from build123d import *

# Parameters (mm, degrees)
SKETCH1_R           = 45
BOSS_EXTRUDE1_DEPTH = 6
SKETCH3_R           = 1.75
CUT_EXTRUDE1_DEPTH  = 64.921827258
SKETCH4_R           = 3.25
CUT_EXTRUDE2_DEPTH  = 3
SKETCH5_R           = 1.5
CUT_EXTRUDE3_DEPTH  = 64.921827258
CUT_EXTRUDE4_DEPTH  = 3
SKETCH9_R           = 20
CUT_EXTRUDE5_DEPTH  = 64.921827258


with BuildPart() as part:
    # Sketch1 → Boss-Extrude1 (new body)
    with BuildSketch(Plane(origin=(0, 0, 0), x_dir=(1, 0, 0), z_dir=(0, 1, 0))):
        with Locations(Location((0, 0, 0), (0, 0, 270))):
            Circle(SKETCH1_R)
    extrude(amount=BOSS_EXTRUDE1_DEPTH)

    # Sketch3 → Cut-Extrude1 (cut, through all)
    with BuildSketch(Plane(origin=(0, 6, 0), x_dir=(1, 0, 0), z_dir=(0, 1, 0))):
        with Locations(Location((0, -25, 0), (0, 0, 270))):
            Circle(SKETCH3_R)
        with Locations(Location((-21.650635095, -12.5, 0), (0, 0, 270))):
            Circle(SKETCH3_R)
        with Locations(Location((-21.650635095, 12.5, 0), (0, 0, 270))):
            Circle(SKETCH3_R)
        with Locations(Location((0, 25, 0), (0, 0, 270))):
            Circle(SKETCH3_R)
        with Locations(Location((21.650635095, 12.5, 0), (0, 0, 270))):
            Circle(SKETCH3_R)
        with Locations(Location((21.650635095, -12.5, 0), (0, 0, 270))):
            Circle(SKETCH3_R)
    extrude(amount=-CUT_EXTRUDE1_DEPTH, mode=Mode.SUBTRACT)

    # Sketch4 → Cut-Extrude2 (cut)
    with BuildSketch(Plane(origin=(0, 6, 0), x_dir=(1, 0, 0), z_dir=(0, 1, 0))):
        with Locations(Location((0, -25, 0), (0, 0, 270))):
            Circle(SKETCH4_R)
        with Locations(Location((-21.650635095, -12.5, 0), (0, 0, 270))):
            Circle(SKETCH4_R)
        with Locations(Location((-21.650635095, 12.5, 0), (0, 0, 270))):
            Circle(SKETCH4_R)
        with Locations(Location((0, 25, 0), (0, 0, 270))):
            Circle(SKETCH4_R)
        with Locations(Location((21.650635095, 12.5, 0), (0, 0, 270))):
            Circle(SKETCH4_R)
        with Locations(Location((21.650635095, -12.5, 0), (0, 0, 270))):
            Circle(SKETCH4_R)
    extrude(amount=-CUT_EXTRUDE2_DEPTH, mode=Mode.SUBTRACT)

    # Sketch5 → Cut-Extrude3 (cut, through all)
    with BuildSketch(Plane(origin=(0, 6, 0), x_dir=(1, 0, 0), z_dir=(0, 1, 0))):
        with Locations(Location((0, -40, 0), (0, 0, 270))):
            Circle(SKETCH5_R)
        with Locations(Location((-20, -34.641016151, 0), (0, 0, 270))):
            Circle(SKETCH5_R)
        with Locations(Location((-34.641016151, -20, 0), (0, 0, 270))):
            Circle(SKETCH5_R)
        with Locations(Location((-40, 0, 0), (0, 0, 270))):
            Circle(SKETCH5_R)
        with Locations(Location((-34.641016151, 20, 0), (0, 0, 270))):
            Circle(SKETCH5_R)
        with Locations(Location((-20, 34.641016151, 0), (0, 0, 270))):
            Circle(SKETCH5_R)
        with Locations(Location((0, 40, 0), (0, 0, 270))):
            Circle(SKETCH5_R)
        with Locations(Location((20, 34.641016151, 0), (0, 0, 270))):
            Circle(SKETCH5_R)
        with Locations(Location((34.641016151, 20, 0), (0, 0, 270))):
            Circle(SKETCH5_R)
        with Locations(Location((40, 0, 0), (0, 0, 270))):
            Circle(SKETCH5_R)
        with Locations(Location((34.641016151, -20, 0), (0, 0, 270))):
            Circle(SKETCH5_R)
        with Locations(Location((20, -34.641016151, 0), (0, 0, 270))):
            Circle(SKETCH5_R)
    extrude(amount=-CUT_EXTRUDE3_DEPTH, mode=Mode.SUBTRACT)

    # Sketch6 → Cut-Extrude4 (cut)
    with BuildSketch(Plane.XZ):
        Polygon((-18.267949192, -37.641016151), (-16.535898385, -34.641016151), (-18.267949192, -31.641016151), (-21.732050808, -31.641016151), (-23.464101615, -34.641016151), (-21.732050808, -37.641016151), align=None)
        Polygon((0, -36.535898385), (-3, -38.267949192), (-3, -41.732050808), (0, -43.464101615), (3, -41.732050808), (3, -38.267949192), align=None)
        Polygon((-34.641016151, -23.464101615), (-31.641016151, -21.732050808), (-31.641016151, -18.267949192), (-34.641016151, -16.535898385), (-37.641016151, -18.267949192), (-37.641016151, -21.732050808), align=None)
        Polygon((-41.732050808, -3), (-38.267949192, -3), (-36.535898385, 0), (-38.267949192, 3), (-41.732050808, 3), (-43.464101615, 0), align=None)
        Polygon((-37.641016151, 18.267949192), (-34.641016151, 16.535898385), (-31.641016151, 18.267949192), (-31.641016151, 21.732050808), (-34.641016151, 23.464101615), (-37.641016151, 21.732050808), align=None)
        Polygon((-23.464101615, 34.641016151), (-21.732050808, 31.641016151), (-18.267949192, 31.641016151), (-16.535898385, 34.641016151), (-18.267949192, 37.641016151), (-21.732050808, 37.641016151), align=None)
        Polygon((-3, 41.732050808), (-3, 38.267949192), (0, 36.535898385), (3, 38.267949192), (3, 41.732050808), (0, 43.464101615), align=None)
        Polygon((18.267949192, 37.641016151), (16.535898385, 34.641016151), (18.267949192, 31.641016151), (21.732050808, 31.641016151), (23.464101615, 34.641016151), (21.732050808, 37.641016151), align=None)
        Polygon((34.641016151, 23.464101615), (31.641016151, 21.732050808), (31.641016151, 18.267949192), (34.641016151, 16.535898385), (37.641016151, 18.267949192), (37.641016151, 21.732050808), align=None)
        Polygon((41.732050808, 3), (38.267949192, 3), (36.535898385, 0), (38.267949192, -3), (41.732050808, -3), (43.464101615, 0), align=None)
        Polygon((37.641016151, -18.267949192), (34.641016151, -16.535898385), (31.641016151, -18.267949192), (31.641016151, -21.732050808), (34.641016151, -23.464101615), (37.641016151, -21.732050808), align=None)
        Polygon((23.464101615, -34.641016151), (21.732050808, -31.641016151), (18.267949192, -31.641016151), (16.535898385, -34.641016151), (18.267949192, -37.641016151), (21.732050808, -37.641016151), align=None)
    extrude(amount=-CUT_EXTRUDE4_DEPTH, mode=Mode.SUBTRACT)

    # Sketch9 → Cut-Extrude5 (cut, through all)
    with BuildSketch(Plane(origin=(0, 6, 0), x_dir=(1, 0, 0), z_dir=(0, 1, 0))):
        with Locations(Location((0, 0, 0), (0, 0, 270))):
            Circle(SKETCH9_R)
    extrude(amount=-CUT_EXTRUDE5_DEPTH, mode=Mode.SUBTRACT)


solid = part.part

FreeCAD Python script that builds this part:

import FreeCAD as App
import Part
import Sketcher

V = App.Vector
Q = App.Units.Quantity


def add_polygon(sketch, points):
    """Adds a closed chain of lines whose ends are joined by coincident constraints."""
    first, n = sketch.GeometryCount, len(points)
    for a, b in zip(points, points[1:] + points[:1]):
        sketch.addGeometry(Part.LineSegment(App.Vector(*a, 0), App.Vector(*b, 0)), False)
    for i in range(n):
        sketch.addConstraint(Sketcher.Constraint("Coincident", first + i, 2, first + (i + 1) % n, 1))

doc = App.newDocument("Part")
body = doc.addObject("PartDesign::Body", "Body")

# Sketch on XZ plane
sketch1 = body.newObject("Sketcher::SketchObject", "Sketch")
sketch1.AttachmentSupport = (doc.getObject("XZ_Plane"), [""])
sketch1.MapMode = "FlatFace"
sketch1.addGeometry(Part.Circle(V(0, 0, 0), V(0, 0, 1), 45), False)
sketch1.addConstraint(Sketcher.Constraint("Coincident", 0, 3, -1, 1))
sketch1.addConstraint(Sketcher.Constraint("Diameter", 0, Q("90 mm")))
pad1 = body.newObject("PartDesign::Pad", "Pad")
pad1.Profile = sketch1
pad1.Length = 6
pad1.Reversed = True

# Sketch on XZ plane
sketch2 = body.newObject("Sketcher::SketchObject", "Sketch001")
sketch2.AttachmentSupport = (doc.getObject("XZ_Plane"), [""])
sketch2.MapMode = "FlatFace"
sketch2.AttachmentOffset = App.Placement(V(0, 0, -6), App.Rotation())
sketch2.addGeometry(Part.Circle(V(0, 25, 0), V(0, 0, 1), 1.8), False)
sketch2.addGeometry(Part.Circle(V(-21.7, 12.5, 0), V(0, 0, 1), 1.8), False)
sketch2.addGeometry(Part.Circle(V(-21.7, -12.5, 0), V(0, 0, 1), 1.8), False)
sketch2.addGeometry(Part.Circle(V(0, -25, 0), V(0, 0, 1), 1.8), False)
sketch2.addGeometry(Part.Circle(V(21.7, -12.5, 0), V(0, 0, 1), 1.8), False)
sketch2.addGeometry(Part.Circle(V(21.7, 12.5, 0), V(0, 0, 1), 1.8), False)
sketch2.addConstraint(Sketcher.Constraint("Equal", 0, 1))
sketch2.addConstraint(Sketcher.Constraint("Equal", 1, 2))
sketch2.addConstraint(Sketcher.Constraint("Equal", 2, 3))
sketch2.addConstraint(Sketcher.Constraint("Equal", 3, 4))
sketch2.addConstraint(Sketcher.Constraint("Equal", 4, 5))
sketch2.addConstraint(Sketcher.Constraint("Symmetric", 0, 3, 3, 3, -1, 1))
sketch2.addConstraint(Sketcher.Constraint("Symmetric", 1, 3, 4, 3, -1, 1))
sketch2.addConstraint(Sketcher.Constraint("Symmetric", 2, 3, 5, 3, -1, 1))
sketch2.addConstraint(Sketcher.Constraint("Symmetric", 2, 3, 4, 3, -2))
sketch2.addConstraint(Sketcher.Constraint("PointOnObject", 0, 3, -2))
sketch2.addConstraint(Sketcher.Constraint("Diameter", 0, Q("3.5 mm")))
sketch2.addConstraint(Sketcher.Constraint("DistanceY", -1, 1, 0, 3, Q("25 mm")))
sketch2.addConstraint(Sketcher.Constraint("DistanceY", 2, 3, 1, 3, Q("25 mm")))
sketch2.addConstraint(Sketcher.Constraint("DistanceX", 2, 3, 4, 3, Q("43.30127 mm")))
pocket1 = body.newObject("PartDesign::Pocket", "Pocket")
pocket1.Profile = sketch2
pocket1.Type = "ThroughAll"
pocket1.Reversed = True

# Sketch on XZ plane
sketch3 = body.newObject("Sketcher::SketchObject", "Sketch002")
sketch3.AttachmentSupport = (doc.getObject("XZ_Plane"), [""])
sketch3.MapMode = "FlatFace"
sketch3.AttachmentOffset = App.Placement(V(0, 0, -6), App.Rotation())
sketch3.addGeometry(Part.Circle(V(0, 25, 0), V(0, 0, 1), 3.2), False)
sketch3.addGeometry(Part.Circle(V(-21.7, 12.5, 0), V(0, 0, 1), 3.2), False)
sketch3.addGeometry(Part.Circle(V(-21.7, -12.5, 0), V(0, 0, 1), 3.2), False)
sketch3.addGeometry(Part.Circle(V(0, -25, 0), V(0, 0, 1), 3.2), False)
sketch3.addGeometry(Part.Circle(V(21.7, -12.5, 0), V(0, 0, 1), 3.2), False)
sketch3.addGeometry(Part.Circle(V(21.7, 12.5, 0), V(0, 0, 1), 3.2), False)
sketch3.addConstraint(Sketcher.Constraint("Equal", 0, 1))
sketch3.addConstraint(Sketcher.Constraint("Equal", 1, 2))
sketch3.addConstraint(Sketcher.Constraint("Equal", 2, 3))
sketch3.addConstraint(Sketcher.Constraint("Equal", 3, 4))
sketch3.addConstraint(Sketcher.Constraint("Equal", 4, 5))
sketch3.addConstraint(Sketcher.Constraint("Symmetric", 0, 3, 3, 3, -1, 1))
sketch3.addConstraint(Sketcher.Constraint("Symmetric", 1, 3, 4, 3, -1, 1))
sketch3.addConstraint(Sketcher.Constraint("Symmetric", 2, 3, 5, 3, -1, 1))
sketch3.addConstraint(Sketcher.Constraint("Symmetric", 2, 3, 4, 3, -2))
sketch3.addConstraint(Sketcher.Constraint("PointOnObject", 0, 3, -2))
sketch3.addConstraint(Sketcher.Constraint("Diameter", 0, Q("6.5 mm")))
sketch3.addConstraint(Sketcher.Constraint("DistanceY", -1, 1, 0, 3, Q("25 mm")))
sketch3.addConstraint(Sketcher.Constraint("DistanceY", 2, 3, 1, 3, Q("25 mm")))
sketch3.addConstraint(Sketcher.Constraint("DistanceX", 2, 3, 4, 3, Q("43.30127 mm")))
pocket2 = body.newObject("PartDesign::Pocket", "Pocket001")
pocket2.Profile = sketch3
pocket2.Length = 3
pocket2.Reversed = True

# Sketch on XZ plane
sketch4 = body.newObject("Sketcher::SketchObject", "Sketch003")
sketch4.AttachmentSupport = (doc.getObject("XZ_Plane"), [""])
sketch4.MapMode = "FlatFace"
sketch4.AttachmentOffset = App.Placement(V(0, 0, -6), App.Rotation())
sketch4.addGeometry(Part.Circle(V(0, 40, 0), V(0, 0, 1), 1.5), False)
sketch4.addGeometry(Part.Circle(V(-20, 34.6, 0), V(0, 0, 1), 1.5), False)
sketch4.addGeometry(Part.Circle(V(-34.6, 20, 0), V(0, 0, 1), 1.5), False)
sketch4.addGeometry(Part.Circle(V(-40, 0, 0), V(0, 0, 1), 1.5), False)
sketch4.addGeometry(Part.Circle(V(-34.6, -20, 0), V(0, 0, 1), 1.5), False)
sketch4.addGeometry(Part.Circle(V(-20, -34.6, 0), V(0, 0, 1), 1.5), False)
sketch4.addGeometry(Part.Circle(V(0, -40, 0), V(0, 0, 1), 1.5), False)
sketch4.addGeometry(Part.Circle(V(20, -34.6, 0), V(0, 0, 1), 1.5), False)
sketch4.addGeometry(Part.Circle(V(34.6, -20, 0), V(0, 0, 1), 1.5), False)
sketch4.addGeometry(Part.Circle(V(40, 0, 0), V(0, 0, 1), 1.5), False)
sketch4.addGeometry(Part.Circle(V(34.6, 20, 0), V(0, 0, 1), 1.5), False)
sketch4.addGeometry(Part.Circle(V(20, 34.6, 0), V(0, 0, 1), 1.5), False)
sketch4.addConstraint(Sketcher.Constraint("Equal", 0, 1))
sketch4.addConstraint(Sketcher.Constraint("Equal", 1, 2))
sketch4.addConstraint(Sketcher.Constraint("Equal", 2, 3))
sketch4.addConstraint(Sketcher.Constraint("Equal", 3, 4))
sketch4.addConstraint(Sketcher.Constraint("Equal", 4, 5))
sketch4.addConstraint(Sketcher.Constraint("Equal", 5, 6))
sketch4.addConstraint(Sketcher.Constraint("Equal", 6, 7))
sketch4.addConstraint(Sketcher.Constraint("Equal", 7, 8))
sketch4.addConstraint(Sketcher.Constraint("Equal", 8, 9))
sketch4.addConstraint(Sketcher.Constraint("Equal", 9, 10))
sketch4.addConstraint(Sketcher.Constraint("Equal", 10, 11))
sketch4.addConstraint(Sketcher.Constraint("Symmetric", 0, 3, 6, 3, -1, 1))
sketch4.addConstraint(Sketcher.Constraint("Symmetric", 1, 3, 7, 3, -1, 1))
sketch4.addConstraint(Sketcher.Constraint("Symmetric", 2, 3, 8, 3, -1, 1))
sketch4.addConstraint(Sketcher.Constraint("Symmetric", 3, 3, 9, 3, -1, 1))
sketch4.addConstraint(Sketcher.Constraint("Symmetric", 4, 3, 10, 3, -1, 1))
sketch4.addConstraint(Sketcher.Constraint("Symmetric", 5, 3, 11, 3, -1, 1))
sketch4.addConstraint(Sketcher.Constraint("Symmetric", 5, 3, 7, 3, -2))
sketch4.addConstraint(Sketcher.Constraint("Symmetric", 4, 3, 8, 3, -2))
sketch4.addConstraint(Sketcher.Constraint("PointOnObject", 0, 3, -2))
sketch4.addConstraint(Sketcher.Constraint("PointOnObject", 3, 3, -1))
sketch4.addConstraint(Sketcher.Constraint("Diameter", 0, Q("3 mm")))
sketch4.addConstraint(Sketcher.Constraint("DistanceY", -1, 1, 0, 3, Q("40 mm")))
sketch4.addConstraint(Sketcher.Constraint("DistanceX", 1, 3, -1, 1, Q("20 mm")))
sketch4.addConstraint(Sketcher.Constraint("DistanceY", -1, 1, 2, 3, Q("20 mm")))
sketch4.addConstraint(Sketcher.Constraint("DistanceX", 3, 3, -1, 1, Q("40 mm")))
sketch4.addConstraint(Sketcher.Constraint("DistanceY", -1, 1, 1, 3, Q("34.641016 mm")))
sketch4.addConstraint(Sketcher.Constraint("DistanceX", 2, 3, -1, 1, Q("34.641016 mm")))
pocket3 = body.newObject("PartDesign::Pocket", "Pocket002")
pocket3.Profile = sketch4
pocket3.Type = "ThroughAll"
pocket3.Reversed = True

# Sketch on XZ plane
sketch5 = body.newObject("Sketcher::SketchObject", "Sketch004")
sketch5.AttachmentSupport = (doc.getObject("XZ_Plane"), [""])
sketch5.MapMode = "FlatFace"
add_polygon(sketch5, [(-18.3, -37.6), (-16.5, -34.6), (-18.3, -31.6), (-21.7, -31.6), (-23.5, -34.6), (-21.7, -37.6)])  # lines 0-5
add_polygon(sketch5, [(0, -36.5), (-3, -38.3), (-3, -41.7), (0, -43.5), (3, -41.7), (3, -38.3)])  # lines 6-11
add_polygon(sketch5, [(-34.6, -23.5), (-31.6, -21.7), (-31.6, -18.3), (-34.6, -16.5), (-37.6, -18.3), (-37.6, -21.7)])  # lines 12-17
add_polygon(sketch5, [(-41.7, -3), (-38.3, -3), (-36.5, 0), (-38.3, 3), (-41.7, 3), (-43.5, 0)])  # lines 18-23
add_polygon(sketch5, [(-37.6, 18.3), (-34.6, 16.5), (-31.6, 18.3), (-31.6, 21.7), (-34.6, 23.5), (-37.6, 21.7)])  # lines 24-29
add_polygon(sketch5, [(-23.5, 34.6), (-21.7, 31.6), (-18.3, 31.6), (-16.5, 34.6), (-18.3, 37.6), (-21.7, 37.6)])  # lines 30-35
add_polygon(sketch5, [(-3, 41.7), (-3, 38.3), (0, 36.5), (3, 38.3), (3, 41.7), (0, 43.5)])  # lines 36-41
add_polygon(sketch5, [(18.3, 37.6), (16.5, 34.6), (18.3, 31.6), (21.7, 31.6), (23.5, 34.6), (21.7, 37.6)])  # lines 42-47
add_polygon(sketch5, [(34.6, 23.5), (31.6, 21.7), (31.6, 18.3), (34.6, 16.5), (37.6, 18.3), (37.6, 21.7)])  # lines 48-53
add_polygon(sketch5, [(41.7, 3), (38.3, 3), (36.5, 0), (38.3, -3), (41.7, -3), (43.5, 0)])  # lines 54-59
add_polygon(sketch5, [(37.6, -18.3), (34.6, -16.5), (31.6, -18.3), (31.6, -21.7), (34.6, -23.5), (37.6, -21.7)])  # lines 60-65
add_polygon(sketch5, [(23.5, -34.6), (21.7, -31.6), (18.3, -31.6), (16.5, -34.6), (18.3, -37.6), (21.7, -37.6)])  # lines 66-71
sketch5.addConstraint(Sketcher.Constraint("Horizontal", 2))
sketch5.addConstraint(Sketcher.Constraint("Horizontal", 5))
sketch5.addConstraint(Sketcher.Constraint("Vertical", 7))
sketch5.addConstraint(Sketcher.Constraint("Vertical", 10))
sketch5.addConstraint(Sketcher.Constraint("Vertical", 13))
sketch5.addConstraint(Sketcher.Constraint("Vertical", 16))
sketch5.addConstraint(Sketcher.Constraint("Horizontal", 18))
sketch5.addConstraint(Sketcher.Constraint("Horizontal", 21))
sketch5.addConstraint(Sketcher.Constraint("Vertical", 26))
sketch5.addConstraint(Sketcher.Constraint("Vertical", 29))
sketch5.addConstraint(Sketcher.Constraint("Horizontal", 31))
sketch5.addConstraint(Sketcher.Constraint("Horizontal", 34))
sketch5.addConstraint(Sketcher.Constraint("Vertical", 36))
sketch5.addConstraint(Sketcher.Constraint("Vertical", 39))
sketch5.addConstraint(Sketcher.Constraint("Horizontal", 44))
sketch5.addConstraint(Sketcher.Constraint("Horizontal", 47))
sketch5.addConstraint(Sketcher.Constraint("Vertical", 49))
sketch5.addConstraint(Sketcher.Constraint("Vertical", 52))
sketch5.addConstraint(Sketcher.Constraint("Horizontal", 54))
sketch5.addConstraint(Sketcher.Constraint("Horizontal", 57))
sketch5.addConstraint(Sketcher.Constraint("Vertical", 62))
sketch5.addConstraint(Sketcher.Constraint("Vertical", 65))
sketch5.addConstraint(Sketcher.Constraint("Horizontal", 67))
sketch5.addConstraint(Sketcher.Constraint("Horizontal", 70))
sketch5.addConstraint(Sketcher.Constraint("Symmetric", 10, 2, 36, 2, -1, 1))
sketch5.addConstraint(Sketcher.Constraint("Symmetric", 11, 2, 37, 2, -1, 1))
sketch5.addConstraint(Sketcher.Constraint("Symmetric", 6, 2, 38, 2, -1, 1))
sketch5.addConstraint(Sketcher.Constraint("Symmetric", 8, 2, 40, 2, -1, 1))
sketch5.addConstraint(Sketcher.Constraint("Symmetric", 0, 2, 42, 2, -1, 1))
sketch5.addConstraint(Sketcher.Constraint("Symmetric", 1, 2, 43, 2, -1, 1))
sketch5.addConstraint(Sketcher.Constraint("Symmetric", 3, 2, 45, 2, -1, 1))
sketch5.addConstraint(Sketcher.Constraint("Symmetric", 4, 2, 46, 2, -1, 1))
sketch5.addConstraint(Sketcher.Constraint("Symmetric", 12, 2, 48, 2, -1, 1))
sketch5.addConstraint(Sketcher.Constraint("Symmetric", 14, 2, 50, 2, -1, 1))
sketch5.addConstraint(Sketcher.Constraint("Symmetric", 15, 2, 51, 2, -1, 1))
sketch5.addConstraint(Sketcher.Constraint("Symmetric", 17, 2, 53, 2, -1, 1))
sketch5.addConstraint(Sketcher.Constraint("Symmetric", 18, 2, 54, 2, -1, 1))
sketch5.addConstraint(Sketcher.Constraint("Symmetric", 19, 2, 55, 2, -1, 1))
sketch5.addConstraint(Sketcher.Constraint("Symmetric", 20, 2, 56, 2, -1, 1))
sketch5.addConstraint(Sketcher.Constraint("Symmetric", 22, 2, 58, 2, -1, 1))
sketch5.addConstraint(Sketcher.Constraint("Symmetric", 24, 2, 60, 2, -1, 1))
sketch5.addConstraint(Sketcher.Constraint("Symmetric", 25, 2, 61, 2, -1, 1))
sketch5.addConstraint(Sketcher.Constraint("Symmetric", 27, 2, 63, 2, -1, 1))
sketch5.addConstraint(Sketcher.Constraint("Symmetric", 28, 2, 64, 2, -1, 1))
sketch5.addConstraint(Sketcher.Constraint("Symmetric", 30, 2, 66, 2, -1, 1))
sketch5.addConstraint(Sketcher.Constraint("Symmetric", 32, 2, 68, 2, -1, 1))
sketch5.addConstraint(Sketcher.Constraint("Symmetric", 33, 2, 69, 2, -1, 1))
sketch5.addConstraint(Sketcher.Constraint("Symmetric", 35, 2, 71, 2, -1, 1))
sketch5.addConstraint(Sketcher.Constraint("Symmetric", 7, 2, 9, 2, -2))
sketch5.addConstraint(Sketcher.Constraint("Symmetric", 32, 2, 42, 2, -2))
sketch5.addConstraint(Sketcher.Constraint("Symmetric", 31, 2, 43, 2, -2))
sketch5.addConstraint(Sketcher.Constraint("Symmetric", 35, 2, 45, 2, -2))
sketch5.addConstraint(Sketcher.Constraint("Symmetric", 34, 2, 46, 2, -2))
sketch5.addConstraint(Sketcher.Constraint("Symmetric", 26, 2, 48, 2, -2))
sketch5.addConstraint(Sketcher.Constraint("Symmetric", 24, 2, 50, 2, -2))
sketch5.addConstraint(Sketcher.Constraint("Symmetric", 29, 2, 51, 2, -2))
sketch5.addConstraint(Sketcher.Constraint("Symmetric", 27, 2, 53, 2, -2))
sketch5.addConstraint(Sketcher.Constraint("Symmetric", 20, 2, 54, 2, -2))
sketch5.addConstraint(Sketcher.Constraint("PointOnObject", 8, 2, -2))
sketch5.addConstraint(Sketcher.Constraint("PointOnObject", 11, 2, -2))
sketch5.addConstraint(Sketcher.Constraint("PointOnObject", 19, 2, -1))
sketch5.addConstraint(Sketcher.Constraint("PointOnObject", 22, 2, -1))
sketch5.addConstraint(Sketcher.Constraint("Parallel", 0, 3))
sketch5.addConstraint(Sketcher.Constraint("Parallel", 1, 4))
sketch5.addConstraint(Sketcher.Constraint("Perpendicular", 4, 6))
sketch5.addConstraint(Sketcher.Constraint("Perpendicular", 3, 8))
sketch5.addConstraint(Sketcher.Constraint("Parallel", 6, 9))
sketch5.addConstraint(Sketcher.Constraint("Parallel", 8, 11))
sketch5.addConstraint(Sketcher.Constraint("Parallel", 9, 12))
sketch5.addConstraint(Sketcher.Constraint("Parallel", 11, 14))
sketch5.addConstraint(Sketcher.Constraint("Parallel", 12, 15))
sketch5.addConstraint(Sketcher.Constraint("Parallel", 14, 17))
sketch5.addConstraint(Sketcher.Constraint("Perpendicular", 17, 19))
sketch5.addConstraint(Sketcher.Constraint("Parallel", 19, 22))
sketch5.addConstraint(Sketcher.Constraint("Parallel", 20, 23))
sketch5.addConstraint(Sketcher.Constraint("Perpendicular", 23, 25))
sketch5.addConstraint(Sketcher.Constraint("Parallel", 25, 28))
sketch5.addConstraint(Sketcher.Constraint("Perpendicular", 28, 30))
sketch5.addConstraint(Sketcher.Constraint("Parallel", 30, 33))
sketch5.addConstraint(Sketcher.Constraint("Parallel", 37, 40))
sketch5.addConstraint(Sketcher.Constraint("Parallel", 38, 41))
sketch5.addConstraint(Sketcher.Constraint("Perpendicular", 40, 42))
sketch5.addConstraint(Sketcher.Constraint("Parallel", 42, 45))
sketch5.addConstraint(Sketcher.Constraint("Perpendicular", 45, 50))
sketch5.addConstraint(Sketcher.Constraint("Parallel", 50, 53))
sketch5.addConstraint(Sketcher.Constraint("Parallel", 55, 58))
sketch5.addConstraint(Sketcher.Constraint("Parallel", 56, 59))
sketch5.addConstraint(Sketcher.Constraint("Perpendicular", 58, 60))
sketch5.addConstraint(Sketcher.Constraint("Parallel", 60, 63))
sketch5.addConstraint(Sketcher.Constraint("Perpendicular", 63, 68))
sketch5.addConstraint(Sketcher.Constraint("Parallel", 68, 71))
sketch5.addConstraint(Sketcher.Constraint("Horizontal", 0, 2, 3, 2))
sketch5.addConstraint(Sketcher.Constraint("Horizontal", 13, 2, 15, 2))
sketch5.addConstraint(Sketcher.Constraint("Horizontal", 12, 2, 16, 2))
sketch5.addConstraint(Sketcher.Constraint("Vertical", 2, 2, 4, 2))
sketch5.addConstraint(Sketcher.Constraint("Equal", 5, 18))
sketch5.addConstraint(Sketcher.Constraint("Equal", 70, 7))
sketch5.addConstraint(Sketcher.Constraint("Equal", 10, 13))
sketch5.addConstraint(Sketcher.Constraint("Equal", 4, 6))
sketch5.addConstraint(Sketcher.Constraint("Equal", 11, 12))
sketch5.addConstraint(Sketcher.Constraint("Equal", 17, 19))
sketch5.addConstraint(Sketcher.Constraint("Angle", 0, Q("60 deg")))
sketch5.addConstraint(Sketcher.Constraint("DistanceX", 6, 2, -1, 1, Q("3 mm")))
sketch5.addConstraint(Sketcher.Constraint("DistanceX", 2, 2, 2, 1, Q("3.464102 mm")))
sketch5.addConstraint(Sketcher.Constraint("DistanceX", 0, 2, -1, 1, Q("16.535898 mm")))
sketch5.addConstraint(Sketcher.Constraint("DistanceY", 8, 2, -1, 1, Q("43.464102 mm")))
sketch5.addConstraint(Sketcher.Constraint("DistanceY", 14, 2, -1, 1, Q("16.535898 mm")))
sketch5.addConstraint(Sketcher.Constraint("DistanceX", 19, 2, -1, 1, Q("36.535898 mm")))
sketch5.addConstraint(Sketcher.Constraint("DistanceY", 0, 2, -1, 1, Q("34.641016 mm")))
sketch5.addConstraint(Sketcher.Constraint("DistanceX", 12, 2, -1, 1, Q("31.641016 mm")))
pocket4 = body.newObject("PartDesign::Pocket", "Pocket003")
pocket4.Profile = sketch5
pocket4.Length = 3

# Sketch on XZ plane
sketch6 = body.newObject("Sketcher::SketchObject", "Sketch005")
sketch6.AttachmentSupport = (doc.getObject("XZ_Plane"), [""])
sketch6.MapMode = "FlatFace"
sketch6.AttachmentOffset = App.Placement(V(0, 0, -6), App.Rotation())
sketch6.addGeometry(Part.Circle(V(0, 0, 0), V(0, 0, 1), 20), False)
sketch6.addConstraint(Sketcher.Constraint("Coincident", 0, 3, -1, 1))
sketch6.addConstraint(Sketcher.Constraint("Diameter", 0, Q("40 mm")))
pocket5 = body.newObject("PartDesign::Pocket", "Pocket004")
pocket5.Profile = sketch6
pocket5.Type = "ThroughAll"
pocket5.Reversed = True

doc.recompute()
